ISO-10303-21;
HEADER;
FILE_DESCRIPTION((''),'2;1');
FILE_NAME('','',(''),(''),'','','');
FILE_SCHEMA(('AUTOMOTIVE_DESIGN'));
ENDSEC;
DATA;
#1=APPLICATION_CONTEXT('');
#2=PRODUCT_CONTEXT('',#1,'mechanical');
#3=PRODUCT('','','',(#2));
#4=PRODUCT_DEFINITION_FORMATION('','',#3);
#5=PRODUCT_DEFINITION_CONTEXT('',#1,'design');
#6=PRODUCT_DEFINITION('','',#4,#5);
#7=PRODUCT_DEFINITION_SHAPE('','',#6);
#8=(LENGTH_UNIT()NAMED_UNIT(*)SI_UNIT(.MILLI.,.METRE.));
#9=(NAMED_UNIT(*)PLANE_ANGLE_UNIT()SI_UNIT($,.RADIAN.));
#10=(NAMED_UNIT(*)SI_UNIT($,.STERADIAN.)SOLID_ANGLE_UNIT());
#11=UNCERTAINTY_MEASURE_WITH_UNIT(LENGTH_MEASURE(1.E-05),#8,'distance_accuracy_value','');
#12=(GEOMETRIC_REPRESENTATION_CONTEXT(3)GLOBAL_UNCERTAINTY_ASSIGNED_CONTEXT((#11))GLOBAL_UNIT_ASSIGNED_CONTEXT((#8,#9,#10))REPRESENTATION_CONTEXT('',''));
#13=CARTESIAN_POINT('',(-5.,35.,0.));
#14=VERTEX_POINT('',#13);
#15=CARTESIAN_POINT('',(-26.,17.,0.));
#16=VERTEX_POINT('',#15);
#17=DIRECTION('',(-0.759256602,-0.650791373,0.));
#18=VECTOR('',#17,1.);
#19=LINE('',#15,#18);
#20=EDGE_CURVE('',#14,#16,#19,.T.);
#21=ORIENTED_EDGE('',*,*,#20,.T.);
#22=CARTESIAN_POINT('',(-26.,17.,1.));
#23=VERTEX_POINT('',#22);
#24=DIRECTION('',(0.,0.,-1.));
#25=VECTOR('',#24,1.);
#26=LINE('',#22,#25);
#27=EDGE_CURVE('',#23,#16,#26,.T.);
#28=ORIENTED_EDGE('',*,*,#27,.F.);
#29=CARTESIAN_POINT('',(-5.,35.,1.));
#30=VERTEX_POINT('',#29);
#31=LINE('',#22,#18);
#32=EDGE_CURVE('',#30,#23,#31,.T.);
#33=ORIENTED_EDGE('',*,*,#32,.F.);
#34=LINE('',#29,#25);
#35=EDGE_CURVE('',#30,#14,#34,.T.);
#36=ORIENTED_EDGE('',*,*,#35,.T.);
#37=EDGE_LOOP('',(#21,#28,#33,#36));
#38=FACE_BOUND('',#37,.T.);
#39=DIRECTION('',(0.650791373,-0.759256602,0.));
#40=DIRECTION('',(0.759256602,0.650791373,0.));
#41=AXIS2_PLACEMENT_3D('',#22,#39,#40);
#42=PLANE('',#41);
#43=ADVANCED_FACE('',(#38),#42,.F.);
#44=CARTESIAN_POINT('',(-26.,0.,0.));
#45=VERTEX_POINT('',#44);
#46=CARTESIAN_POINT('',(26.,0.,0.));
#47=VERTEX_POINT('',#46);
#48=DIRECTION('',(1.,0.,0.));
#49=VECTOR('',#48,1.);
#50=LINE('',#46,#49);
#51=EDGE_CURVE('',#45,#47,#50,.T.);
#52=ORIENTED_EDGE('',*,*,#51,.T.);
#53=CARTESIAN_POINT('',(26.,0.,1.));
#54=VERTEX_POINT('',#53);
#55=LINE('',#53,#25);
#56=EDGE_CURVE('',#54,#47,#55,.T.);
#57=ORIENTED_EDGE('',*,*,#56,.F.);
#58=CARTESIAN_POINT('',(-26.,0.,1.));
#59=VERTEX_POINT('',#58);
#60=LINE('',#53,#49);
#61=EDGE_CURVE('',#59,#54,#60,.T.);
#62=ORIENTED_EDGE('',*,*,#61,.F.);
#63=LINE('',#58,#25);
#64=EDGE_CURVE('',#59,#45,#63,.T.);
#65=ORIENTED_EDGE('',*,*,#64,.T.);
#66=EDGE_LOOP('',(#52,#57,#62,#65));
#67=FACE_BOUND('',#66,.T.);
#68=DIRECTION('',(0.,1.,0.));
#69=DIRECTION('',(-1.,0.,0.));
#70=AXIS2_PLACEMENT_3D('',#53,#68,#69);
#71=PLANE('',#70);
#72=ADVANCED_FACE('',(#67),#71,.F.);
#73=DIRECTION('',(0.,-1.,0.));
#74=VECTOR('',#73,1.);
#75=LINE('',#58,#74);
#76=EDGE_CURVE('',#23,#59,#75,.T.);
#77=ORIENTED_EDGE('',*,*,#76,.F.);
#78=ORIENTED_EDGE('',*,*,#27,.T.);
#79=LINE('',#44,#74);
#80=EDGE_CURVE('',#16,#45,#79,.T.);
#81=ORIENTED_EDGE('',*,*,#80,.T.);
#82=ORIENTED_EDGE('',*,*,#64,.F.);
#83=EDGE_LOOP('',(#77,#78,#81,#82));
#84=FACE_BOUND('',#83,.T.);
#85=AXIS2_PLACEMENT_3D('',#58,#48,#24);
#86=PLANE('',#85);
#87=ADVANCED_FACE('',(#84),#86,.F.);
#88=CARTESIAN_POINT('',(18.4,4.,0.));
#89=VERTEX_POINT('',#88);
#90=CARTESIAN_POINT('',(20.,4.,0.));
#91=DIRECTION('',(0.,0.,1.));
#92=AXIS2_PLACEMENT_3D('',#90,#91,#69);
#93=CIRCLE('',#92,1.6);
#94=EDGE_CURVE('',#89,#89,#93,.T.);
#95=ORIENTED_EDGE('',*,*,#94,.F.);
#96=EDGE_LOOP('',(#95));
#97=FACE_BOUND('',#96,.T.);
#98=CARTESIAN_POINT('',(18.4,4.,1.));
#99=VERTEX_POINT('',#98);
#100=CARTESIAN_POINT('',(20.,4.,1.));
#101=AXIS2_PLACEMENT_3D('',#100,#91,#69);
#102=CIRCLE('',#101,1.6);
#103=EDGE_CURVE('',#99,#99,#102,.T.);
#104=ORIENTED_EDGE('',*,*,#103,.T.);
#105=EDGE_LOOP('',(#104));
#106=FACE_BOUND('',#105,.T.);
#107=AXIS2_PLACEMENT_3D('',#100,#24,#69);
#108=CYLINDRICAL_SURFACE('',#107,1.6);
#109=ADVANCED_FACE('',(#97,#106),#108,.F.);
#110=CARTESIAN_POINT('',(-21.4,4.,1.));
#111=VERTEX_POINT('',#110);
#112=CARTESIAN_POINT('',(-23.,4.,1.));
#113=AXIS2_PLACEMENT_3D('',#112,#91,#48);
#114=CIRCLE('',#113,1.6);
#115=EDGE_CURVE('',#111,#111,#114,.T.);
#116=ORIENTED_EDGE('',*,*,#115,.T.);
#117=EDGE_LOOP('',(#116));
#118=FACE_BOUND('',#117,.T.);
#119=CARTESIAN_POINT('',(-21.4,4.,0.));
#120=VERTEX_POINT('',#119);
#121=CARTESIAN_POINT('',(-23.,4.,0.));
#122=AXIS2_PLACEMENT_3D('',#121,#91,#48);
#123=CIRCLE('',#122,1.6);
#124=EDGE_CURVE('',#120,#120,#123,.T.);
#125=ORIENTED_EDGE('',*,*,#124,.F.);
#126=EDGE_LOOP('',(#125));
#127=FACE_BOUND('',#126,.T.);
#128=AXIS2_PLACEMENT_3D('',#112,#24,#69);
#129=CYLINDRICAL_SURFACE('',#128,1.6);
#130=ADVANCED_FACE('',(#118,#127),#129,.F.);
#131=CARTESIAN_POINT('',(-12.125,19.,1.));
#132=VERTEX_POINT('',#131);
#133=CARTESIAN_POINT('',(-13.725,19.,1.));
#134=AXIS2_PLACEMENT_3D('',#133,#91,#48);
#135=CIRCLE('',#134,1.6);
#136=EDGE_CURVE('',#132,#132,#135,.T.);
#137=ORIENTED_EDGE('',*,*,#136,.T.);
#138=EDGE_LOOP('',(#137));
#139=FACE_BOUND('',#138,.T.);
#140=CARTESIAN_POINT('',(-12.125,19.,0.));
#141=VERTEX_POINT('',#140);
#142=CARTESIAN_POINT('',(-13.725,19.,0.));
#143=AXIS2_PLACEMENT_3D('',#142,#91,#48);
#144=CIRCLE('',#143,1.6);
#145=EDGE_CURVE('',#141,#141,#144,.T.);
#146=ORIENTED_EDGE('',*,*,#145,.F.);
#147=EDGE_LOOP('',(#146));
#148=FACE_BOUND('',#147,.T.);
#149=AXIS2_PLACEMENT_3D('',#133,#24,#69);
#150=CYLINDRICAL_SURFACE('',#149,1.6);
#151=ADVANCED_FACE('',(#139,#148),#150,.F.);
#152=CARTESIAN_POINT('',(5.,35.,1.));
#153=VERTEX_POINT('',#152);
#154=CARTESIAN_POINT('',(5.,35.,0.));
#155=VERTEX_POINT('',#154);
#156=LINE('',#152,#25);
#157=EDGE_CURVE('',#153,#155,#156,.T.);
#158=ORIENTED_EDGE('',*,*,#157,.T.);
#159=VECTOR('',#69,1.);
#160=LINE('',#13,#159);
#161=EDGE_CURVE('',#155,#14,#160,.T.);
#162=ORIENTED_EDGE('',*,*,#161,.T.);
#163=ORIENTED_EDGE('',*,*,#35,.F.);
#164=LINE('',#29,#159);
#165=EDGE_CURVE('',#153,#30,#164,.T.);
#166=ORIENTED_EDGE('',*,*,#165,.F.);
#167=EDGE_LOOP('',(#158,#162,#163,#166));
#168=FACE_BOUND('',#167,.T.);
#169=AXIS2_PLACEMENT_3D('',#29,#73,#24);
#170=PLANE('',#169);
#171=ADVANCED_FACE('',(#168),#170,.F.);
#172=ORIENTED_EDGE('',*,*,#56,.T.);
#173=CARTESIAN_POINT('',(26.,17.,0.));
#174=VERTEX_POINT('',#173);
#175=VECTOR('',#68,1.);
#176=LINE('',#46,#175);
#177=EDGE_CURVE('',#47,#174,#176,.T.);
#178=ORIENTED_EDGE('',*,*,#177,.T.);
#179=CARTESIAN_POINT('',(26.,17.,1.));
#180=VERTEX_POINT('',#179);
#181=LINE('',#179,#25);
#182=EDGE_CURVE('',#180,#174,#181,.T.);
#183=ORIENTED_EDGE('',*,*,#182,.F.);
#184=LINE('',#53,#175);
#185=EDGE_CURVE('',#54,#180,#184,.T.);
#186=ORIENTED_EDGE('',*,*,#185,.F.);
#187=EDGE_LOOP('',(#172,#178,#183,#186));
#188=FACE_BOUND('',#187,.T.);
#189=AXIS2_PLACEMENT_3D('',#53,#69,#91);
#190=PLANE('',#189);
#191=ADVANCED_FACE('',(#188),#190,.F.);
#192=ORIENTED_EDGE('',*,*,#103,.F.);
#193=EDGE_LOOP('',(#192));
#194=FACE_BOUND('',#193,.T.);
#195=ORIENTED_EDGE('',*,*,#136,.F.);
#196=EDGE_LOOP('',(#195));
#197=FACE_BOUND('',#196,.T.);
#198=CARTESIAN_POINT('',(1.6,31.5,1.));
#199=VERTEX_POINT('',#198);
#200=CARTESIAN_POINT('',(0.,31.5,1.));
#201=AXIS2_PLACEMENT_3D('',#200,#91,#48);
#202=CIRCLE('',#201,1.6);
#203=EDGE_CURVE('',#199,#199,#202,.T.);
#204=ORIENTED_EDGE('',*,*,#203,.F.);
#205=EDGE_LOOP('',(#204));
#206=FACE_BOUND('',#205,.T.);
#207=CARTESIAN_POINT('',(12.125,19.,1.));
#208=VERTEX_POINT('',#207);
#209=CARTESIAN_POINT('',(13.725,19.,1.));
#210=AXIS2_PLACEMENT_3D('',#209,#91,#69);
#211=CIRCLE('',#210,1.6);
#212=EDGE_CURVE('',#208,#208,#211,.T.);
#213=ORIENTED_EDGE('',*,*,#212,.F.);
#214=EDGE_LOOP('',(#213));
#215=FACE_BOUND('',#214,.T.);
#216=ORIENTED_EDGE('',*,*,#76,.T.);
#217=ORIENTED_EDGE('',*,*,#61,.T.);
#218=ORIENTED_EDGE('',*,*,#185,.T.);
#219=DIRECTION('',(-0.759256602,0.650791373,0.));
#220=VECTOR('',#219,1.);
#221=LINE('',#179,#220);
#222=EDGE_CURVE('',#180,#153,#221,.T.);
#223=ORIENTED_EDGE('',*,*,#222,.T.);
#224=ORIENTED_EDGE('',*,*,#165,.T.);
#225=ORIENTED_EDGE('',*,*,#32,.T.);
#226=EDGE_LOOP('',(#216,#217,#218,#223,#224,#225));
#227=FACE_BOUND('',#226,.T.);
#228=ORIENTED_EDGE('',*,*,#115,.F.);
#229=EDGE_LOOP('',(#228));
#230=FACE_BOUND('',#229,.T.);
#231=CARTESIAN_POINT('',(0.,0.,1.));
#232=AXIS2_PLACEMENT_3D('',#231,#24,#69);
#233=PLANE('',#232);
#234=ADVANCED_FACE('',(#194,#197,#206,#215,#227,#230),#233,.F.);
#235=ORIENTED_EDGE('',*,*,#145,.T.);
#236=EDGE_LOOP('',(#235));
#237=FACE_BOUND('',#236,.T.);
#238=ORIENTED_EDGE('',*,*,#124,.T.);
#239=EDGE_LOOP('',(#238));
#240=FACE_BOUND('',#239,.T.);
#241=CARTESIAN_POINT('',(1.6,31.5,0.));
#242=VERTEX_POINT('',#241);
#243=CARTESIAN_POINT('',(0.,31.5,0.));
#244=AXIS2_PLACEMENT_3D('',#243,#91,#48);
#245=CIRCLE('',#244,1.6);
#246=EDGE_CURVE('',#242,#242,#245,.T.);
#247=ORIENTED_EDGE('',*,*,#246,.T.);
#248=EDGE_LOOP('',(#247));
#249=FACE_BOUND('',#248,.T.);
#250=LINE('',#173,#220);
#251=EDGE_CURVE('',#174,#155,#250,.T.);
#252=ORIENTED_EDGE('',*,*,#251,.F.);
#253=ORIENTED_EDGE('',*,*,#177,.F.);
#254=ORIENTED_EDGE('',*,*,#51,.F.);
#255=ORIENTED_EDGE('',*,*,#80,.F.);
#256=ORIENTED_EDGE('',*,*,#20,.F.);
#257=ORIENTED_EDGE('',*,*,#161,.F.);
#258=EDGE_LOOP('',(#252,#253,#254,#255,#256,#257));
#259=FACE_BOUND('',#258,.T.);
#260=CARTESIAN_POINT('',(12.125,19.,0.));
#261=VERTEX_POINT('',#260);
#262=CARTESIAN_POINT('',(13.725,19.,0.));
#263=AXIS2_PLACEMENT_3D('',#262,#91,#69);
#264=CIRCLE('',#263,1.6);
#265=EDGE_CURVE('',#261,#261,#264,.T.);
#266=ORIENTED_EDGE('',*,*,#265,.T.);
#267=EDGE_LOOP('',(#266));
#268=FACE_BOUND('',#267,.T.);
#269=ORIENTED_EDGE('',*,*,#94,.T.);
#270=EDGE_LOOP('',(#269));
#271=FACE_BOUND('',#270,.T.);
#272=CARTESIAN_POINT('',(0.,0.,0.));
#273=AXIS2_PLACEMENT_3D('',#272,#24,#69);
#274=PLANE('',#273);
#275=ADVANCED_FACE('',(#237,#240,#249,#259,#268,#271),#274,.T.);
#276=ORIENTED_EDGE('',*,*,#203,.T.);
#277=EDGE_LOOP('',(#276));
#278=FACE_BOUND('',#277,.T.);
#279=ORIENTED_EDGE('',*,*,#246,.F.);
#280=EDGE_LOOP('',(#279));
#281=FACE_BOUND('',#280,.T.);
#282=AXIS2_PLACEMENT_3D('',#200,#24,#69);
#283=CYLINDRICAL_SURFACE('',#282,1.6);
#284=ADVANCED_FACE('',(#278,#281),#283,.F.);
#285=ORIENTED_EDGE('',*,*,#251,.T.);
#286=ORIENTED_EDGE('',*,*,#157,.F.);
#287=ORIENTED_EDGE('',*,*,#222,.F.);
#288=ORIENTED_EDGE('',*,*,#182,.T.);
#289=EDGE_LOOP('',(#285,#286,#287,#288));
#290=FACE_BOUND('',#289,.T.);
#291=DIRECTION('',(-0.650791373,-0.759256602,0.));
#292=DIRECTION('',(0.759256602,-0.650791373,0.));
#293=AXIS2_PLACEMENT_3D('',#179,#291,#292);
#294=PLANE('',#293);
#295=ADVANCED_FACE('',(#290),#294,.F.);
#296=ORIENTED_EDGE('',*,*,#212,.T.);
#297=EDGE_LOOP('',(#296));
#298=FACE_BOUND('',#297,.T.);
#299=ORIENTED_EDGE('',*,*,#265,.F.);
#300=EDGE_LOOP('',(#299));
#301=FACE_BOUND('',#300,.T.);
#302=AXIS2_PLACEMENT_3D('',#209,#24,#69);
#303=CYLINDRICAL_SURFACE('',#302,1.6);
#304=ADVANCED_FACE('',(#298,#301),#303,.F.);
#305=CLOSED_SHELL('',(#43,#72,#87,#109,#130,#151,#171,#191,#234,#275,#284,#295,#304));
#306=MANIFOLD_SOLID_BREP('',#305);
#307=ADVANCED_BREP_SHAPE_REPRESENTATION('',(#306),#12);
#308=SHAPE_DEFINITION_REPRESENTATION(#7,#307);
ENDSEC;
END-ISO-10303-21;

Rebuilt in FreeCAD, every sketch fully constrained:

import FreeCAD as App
import Part
import Sketcher

V = App.Vector
Q = App.Units.Quantity


def add_polygon(sketch, points):
    """Adds a closed chain of lines whose ends are joined by coincident constraints."""
    first, n = sketch.GeometryCount, len(points)
    for a, b in zip(points, points[1:] + points[:1]):
        sketch.addGeometry(Part.LineSegment(App.Vector(*a, 0), App.Vector(*b, 0)), False)
    for i in range(n):
        sketch.addConstraint(Sketcher.Constraint("Coincident", first + i, 2, first + (i + 1) % n, 1))

doc = App.newDocument("Part")
body = doc.addObject("PartDesign::Body", "Body")

# Sketch on XY plane
sketch1 = body.newObject("Sketcher::SketchObject", "Sketch")
sketch1.AttachmentSupport = (doc.getObject("XY_Plane"), [""])
sketch1.MapMode = "FlatFace"
add_polygon(sketch1, [(-26, 0), (26, 0), (26, 17), (5, 35), (-5, 35), (-26, 17)])  # lines 0-5
sketch1.addGeometry(Part.Circle(V(20, 4, 0), V(0, 0, 1), 1.6), False)  # 6
sketch1.addGeometry(Part.Circle(V(-23, 4, 0), V(0, 0, 1), 1.6), False)  # 7
sketch1.addGeometry(Part.Circle(V(13.7, 19, 0), V(0, 0, 1), 1.6), False)  # 8
sketch1.addGeometry(Part.Circle(V(0, 31.5, 0), V(0, 0, 1), 1.6), False)  # 9
sketch1.addGeometry(Part.Circle(V(-13.7, 19, 0), V(0, 0, 1), 1.6), False)  # 10
sketch1.addConstraint([
    Sketcher.Constraint("Horizontal", 0),
    Sketcher.Constraint("Vertical", 1),
    Sketcher.Constraint("Horizontal", 3),
    Sketcher.Constraint("Vertical", 5),
    Sketcher.Constraint("Equal", 6, 7),
    Sketcher.Constraint("Equal", 7, 8),
    Sketcher.Constraint("Equal", 8, 9),
    Sketcher.Constraint("Equal", 9, 10),
    Sketcher.Constraint("Symmetric", 0, 2, 5, 2, -1, 1),
    Sketcher.Constraint("Symmetric", 8, 3, 10, 3, -2),
    Sketcher.Constraint("PointOnObject", 9, 3, -2),
    Sketcher.Constraint("Horizontal", 6, 3, 7, 3),
    Sketcher.Constraint("Horizontal", 1, 2, 4, 2),
    Sketcher.Constraint("Equal", 2, 4),
    Sketcher.Constraint("Diameter", 6, Q("3.2 mm")),
    Sketcher.Constraint("DistanceX", 0, 1, 0, 2, Q("52 mm")),
    Sketcher.Constraint("DistanceX", 3, 2, 3, 1, Q("10 mm")),
    Sketcher.Constraint("DistanceY", 1, 1, 1, 2, Q("17 mm")),
    Sketcher.Constraint("DistanceX", -1, 1, 6, 3, Q("20 mm")),
    Sketcher.Constraint("DistanceY", -1, 1, 6, 3, Q("4 mm")),
    Sketcher.Constraint("DistanceX", 7, 3, -1, 1, Q("23 mm")),
    Sketcher.Constraint("DistanceY", -1, 1, 8, 3, Q("19 mm")),
    Sketcher.Constraint("DistanceY", -1, 1, 2, 2, Q("35 mm")),
    Sketcher.Constraint("DistanceY", -1, 1, 9, 3, Q("31.5 mm")),
    Sketcher.Constraint("DistanceX", 10, 3, 8, 3, Q("27.45 mm")),
])
pad1 = body.newObject("PartDesign::Pad", "Pad")
pad1.Profile = sketch1
pad1.Length = 1

doc.recompute()
